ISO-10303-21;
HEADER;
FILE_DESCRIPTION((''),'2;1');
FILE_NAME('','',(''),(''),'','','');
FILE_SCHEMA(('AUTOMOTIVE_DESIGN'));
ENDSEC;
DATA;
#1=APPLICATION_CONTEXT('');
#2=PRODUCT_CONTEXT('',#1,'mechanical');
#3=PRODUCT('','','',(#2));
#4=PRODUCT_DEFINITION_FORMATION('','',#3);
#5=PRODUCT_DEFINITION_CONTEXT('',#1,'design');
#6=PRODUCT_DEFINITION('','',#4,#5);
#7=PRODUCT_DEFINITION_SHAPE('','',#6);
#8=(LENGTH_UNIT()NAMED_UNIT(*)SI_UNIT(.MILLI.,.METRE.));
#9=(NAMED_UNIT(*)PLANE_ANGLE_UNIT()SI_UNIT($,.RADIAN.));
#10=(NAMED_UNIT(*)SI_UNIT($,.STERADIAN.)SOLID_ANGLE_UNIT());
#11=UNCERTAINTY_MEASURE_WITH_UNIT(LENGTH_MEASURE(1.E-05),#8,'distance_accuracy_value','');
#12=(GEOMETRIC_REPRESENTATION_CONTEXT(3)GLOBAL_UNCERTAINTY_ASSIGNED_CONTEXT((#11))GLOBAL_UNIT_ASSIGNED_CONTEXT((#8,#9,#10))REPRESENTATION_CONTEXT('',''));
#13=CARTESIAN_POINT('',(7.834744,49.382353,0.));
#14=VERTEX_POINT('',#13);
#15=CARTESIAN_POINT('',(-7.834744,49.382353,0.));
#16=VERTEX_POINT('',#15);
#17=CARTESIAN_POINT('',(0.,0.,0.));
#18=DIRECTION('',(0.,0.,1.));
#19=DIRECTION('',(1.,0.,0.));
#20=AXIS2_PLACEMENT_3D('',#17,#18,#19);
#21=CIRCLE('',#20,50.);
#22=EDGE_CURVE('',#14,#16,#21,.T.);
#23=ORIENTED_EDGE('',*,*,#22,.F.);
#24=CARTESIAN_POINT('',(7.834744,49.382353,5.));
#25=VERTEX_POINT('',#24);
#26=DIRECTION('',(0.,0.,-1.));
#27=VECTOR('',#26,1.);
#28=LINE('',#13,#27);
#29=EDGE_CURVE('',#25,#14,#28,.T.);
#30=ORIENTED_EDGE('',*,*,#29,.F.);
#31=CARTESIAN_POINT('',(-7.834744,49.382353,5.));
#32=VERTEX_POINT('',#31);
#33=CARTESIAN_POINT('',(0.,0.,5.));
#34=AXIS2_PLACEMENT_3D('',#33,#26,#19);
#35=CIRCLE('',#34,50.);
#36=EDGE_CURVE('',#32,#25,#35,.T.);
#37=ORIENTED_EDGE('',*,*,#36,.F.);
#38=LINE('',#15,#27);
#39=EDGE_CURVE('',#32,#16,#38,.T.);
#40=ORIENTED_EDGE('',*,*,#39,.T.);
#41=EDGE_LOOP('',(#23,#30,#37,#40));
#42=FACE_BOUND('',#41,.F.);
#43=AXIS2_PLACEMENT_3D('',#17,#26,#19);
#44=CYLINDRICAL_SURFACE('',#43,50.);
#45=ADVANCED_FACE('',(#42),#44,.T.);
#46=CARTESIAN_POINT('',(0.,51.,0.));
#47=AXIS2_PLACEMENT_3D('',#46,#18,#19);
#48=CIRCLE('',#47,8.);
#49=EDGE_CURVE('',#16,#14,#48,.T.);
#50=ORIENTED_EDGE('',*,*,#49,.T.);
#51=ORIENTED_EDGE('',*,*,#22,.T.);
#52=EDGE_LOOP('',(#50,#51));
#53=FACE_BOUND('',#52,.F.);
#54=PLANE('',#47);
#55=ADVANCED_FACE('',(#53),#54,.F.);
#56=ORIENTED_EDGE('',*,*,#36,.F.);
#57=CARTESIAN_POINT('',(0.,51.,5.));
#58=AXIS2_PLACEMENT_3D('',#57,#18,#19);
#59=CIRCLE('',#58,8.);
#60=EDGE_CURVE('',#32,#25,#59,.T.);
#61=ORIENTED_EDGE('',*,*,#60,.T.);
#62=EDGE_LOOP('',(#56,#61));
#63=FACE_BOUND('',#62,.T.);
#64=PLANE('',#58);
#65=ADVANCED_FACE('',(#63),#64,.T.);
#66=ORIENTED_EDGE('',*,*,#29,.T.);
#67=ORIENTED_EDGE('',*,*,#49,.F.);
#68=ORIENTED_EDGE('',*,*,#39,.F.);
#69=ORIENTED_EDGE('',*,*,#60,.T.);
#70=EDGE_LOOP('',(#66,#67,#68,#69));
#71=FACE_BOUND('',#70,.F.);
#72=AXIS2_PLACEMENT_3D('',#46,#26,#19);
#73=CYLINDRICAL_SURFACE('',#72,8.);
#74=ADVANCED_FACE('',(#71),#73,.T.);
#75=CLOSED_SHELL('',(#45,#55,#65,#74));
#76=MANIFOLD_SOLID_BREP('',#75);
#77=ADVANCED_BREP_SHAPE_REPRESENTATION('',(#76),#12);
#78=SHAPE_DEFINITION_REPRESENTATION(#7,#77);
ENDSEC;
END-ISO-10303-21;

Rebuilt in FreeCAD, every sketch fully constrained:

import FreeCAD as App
import Part
import Sketcher

doc = App.newDocument("Part")
body = doc.addObject("PartDesign::Body", "Body")

sketch1 = doc.addObject("Sketcher::SketchObject", "Sketch")
body.addObject(sketch1)
sketch1.AttachmentSupport = (doc.XY_Plane, [""])
sketch1.MapMode = "FlatFace"
sketch1.addGeometry(Part.Circle(App.Vector(0, 0, 0), App.Vector(0, 0, 1), 50), False)
sketch1.addConstraint([
    Sketcher.Constraint("Coincident", 0, 3, -1, 1),
    Sketcher.Constraint("Diameter", 0, 100.0),
])
pad1 = doc.addObject("PartDesign::Pad", "Pad")
body.addObject(pad1)
pad1.Profile = sketch1
pad1.Length = 10
body2 = doc.addObject("PartDesign::Body", "Body001")

sketch2 = doc.addObject("Sketcher::SketchObject", "Sketch001")
body2.addObject(sketch2)
sketch2.AttachmentSupport = (doc.getObject("XY_Plane001"), [""])
sketch2.MapMode = "FlatFace"
sketch2.addGeometry(Part.Circle(App.Vector(0, 51, 0), App.Vector(0, 0, 1), 8), False)
sketch2.addConstraint([
    Sketcher.Constraint("PointOnObject", 0, 3, -2),
    Sketcher.Constraint("Diameter", 0, 16.0),
    Sketcher.Constraint("DistanceY", -1, 1, 0, 3, 51.0),
])
pad2 = doc.addObject("PartDesign::Pad", "Pad001")
body2.addObject(pad2)
pad2.Profile = sketch2
pad2.Length = 5
doc.recompute()

boolean = doc.addObject("PartDesign::Boolean", "Boolean")
body2.addObject(boolean)
boolean.Type = "Common"
boolean.addObjects([body])

doc.recompute()
